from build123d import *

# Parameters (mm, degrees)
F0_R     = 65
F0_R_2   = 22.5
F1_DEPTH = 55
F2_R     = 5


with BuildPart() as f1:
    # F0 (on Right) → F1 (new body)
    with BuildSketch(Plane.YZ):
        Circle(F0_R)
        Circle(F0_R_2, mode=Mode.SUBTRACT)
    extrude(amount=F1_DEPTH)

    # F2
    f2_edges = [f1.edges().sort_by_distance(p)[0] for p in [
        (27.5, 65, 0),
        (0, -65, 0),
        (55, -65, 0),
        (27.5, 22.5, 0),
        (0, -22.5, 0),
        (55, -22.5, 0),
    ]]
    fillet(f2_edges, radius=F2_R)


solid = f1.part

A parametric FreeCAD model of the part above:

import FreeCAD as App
import Part
import Sketcher

doc = App.newDocument("Part")
body = doc.addObject("PartDesign::Body", "Body")

# Sketch on YZ plane
sketch1 = body.newObject("Sketcher::SketchObject", "Sketch")
sketch1.AttachmentSupport = (doc.getObject("YZ_Plane"), [""])
sketch1.MapMode = "FlatFace"
sketch1.addGeometry([
    Part.Circle(App.Vector(0, 0, 0), App.Vector(0, 0, 1), 65),
    Part.Circle(App.Vector(0, 0, 0), App.Vector(0, 0, 1), 22.5),
], False)
sketch1.addConstraint([
    Sketcher.Constraint("Coincident", 0, 3, -1, 1),
    Sketcher.Constraint("Coincident", 1, 3, -1, 1),
    Sketcher.Constraint("Diameter", 0, 130.0),
    Sketcher.Constraint("Diameter", 1, 45.0),
])
pad1 = body.newObject("PartDesign::Pad", "Pad")
pad1.Profile = sketch1
pad1.Length = 55
doc.recompute()

fillet = body.newObject("PartDesign::Fillet", "Fillet")
fillet.Base = (pad1, ["Edge1"])
fillet.UseAllEdges = True
fillet.Radius = 5

doc.recompute()
